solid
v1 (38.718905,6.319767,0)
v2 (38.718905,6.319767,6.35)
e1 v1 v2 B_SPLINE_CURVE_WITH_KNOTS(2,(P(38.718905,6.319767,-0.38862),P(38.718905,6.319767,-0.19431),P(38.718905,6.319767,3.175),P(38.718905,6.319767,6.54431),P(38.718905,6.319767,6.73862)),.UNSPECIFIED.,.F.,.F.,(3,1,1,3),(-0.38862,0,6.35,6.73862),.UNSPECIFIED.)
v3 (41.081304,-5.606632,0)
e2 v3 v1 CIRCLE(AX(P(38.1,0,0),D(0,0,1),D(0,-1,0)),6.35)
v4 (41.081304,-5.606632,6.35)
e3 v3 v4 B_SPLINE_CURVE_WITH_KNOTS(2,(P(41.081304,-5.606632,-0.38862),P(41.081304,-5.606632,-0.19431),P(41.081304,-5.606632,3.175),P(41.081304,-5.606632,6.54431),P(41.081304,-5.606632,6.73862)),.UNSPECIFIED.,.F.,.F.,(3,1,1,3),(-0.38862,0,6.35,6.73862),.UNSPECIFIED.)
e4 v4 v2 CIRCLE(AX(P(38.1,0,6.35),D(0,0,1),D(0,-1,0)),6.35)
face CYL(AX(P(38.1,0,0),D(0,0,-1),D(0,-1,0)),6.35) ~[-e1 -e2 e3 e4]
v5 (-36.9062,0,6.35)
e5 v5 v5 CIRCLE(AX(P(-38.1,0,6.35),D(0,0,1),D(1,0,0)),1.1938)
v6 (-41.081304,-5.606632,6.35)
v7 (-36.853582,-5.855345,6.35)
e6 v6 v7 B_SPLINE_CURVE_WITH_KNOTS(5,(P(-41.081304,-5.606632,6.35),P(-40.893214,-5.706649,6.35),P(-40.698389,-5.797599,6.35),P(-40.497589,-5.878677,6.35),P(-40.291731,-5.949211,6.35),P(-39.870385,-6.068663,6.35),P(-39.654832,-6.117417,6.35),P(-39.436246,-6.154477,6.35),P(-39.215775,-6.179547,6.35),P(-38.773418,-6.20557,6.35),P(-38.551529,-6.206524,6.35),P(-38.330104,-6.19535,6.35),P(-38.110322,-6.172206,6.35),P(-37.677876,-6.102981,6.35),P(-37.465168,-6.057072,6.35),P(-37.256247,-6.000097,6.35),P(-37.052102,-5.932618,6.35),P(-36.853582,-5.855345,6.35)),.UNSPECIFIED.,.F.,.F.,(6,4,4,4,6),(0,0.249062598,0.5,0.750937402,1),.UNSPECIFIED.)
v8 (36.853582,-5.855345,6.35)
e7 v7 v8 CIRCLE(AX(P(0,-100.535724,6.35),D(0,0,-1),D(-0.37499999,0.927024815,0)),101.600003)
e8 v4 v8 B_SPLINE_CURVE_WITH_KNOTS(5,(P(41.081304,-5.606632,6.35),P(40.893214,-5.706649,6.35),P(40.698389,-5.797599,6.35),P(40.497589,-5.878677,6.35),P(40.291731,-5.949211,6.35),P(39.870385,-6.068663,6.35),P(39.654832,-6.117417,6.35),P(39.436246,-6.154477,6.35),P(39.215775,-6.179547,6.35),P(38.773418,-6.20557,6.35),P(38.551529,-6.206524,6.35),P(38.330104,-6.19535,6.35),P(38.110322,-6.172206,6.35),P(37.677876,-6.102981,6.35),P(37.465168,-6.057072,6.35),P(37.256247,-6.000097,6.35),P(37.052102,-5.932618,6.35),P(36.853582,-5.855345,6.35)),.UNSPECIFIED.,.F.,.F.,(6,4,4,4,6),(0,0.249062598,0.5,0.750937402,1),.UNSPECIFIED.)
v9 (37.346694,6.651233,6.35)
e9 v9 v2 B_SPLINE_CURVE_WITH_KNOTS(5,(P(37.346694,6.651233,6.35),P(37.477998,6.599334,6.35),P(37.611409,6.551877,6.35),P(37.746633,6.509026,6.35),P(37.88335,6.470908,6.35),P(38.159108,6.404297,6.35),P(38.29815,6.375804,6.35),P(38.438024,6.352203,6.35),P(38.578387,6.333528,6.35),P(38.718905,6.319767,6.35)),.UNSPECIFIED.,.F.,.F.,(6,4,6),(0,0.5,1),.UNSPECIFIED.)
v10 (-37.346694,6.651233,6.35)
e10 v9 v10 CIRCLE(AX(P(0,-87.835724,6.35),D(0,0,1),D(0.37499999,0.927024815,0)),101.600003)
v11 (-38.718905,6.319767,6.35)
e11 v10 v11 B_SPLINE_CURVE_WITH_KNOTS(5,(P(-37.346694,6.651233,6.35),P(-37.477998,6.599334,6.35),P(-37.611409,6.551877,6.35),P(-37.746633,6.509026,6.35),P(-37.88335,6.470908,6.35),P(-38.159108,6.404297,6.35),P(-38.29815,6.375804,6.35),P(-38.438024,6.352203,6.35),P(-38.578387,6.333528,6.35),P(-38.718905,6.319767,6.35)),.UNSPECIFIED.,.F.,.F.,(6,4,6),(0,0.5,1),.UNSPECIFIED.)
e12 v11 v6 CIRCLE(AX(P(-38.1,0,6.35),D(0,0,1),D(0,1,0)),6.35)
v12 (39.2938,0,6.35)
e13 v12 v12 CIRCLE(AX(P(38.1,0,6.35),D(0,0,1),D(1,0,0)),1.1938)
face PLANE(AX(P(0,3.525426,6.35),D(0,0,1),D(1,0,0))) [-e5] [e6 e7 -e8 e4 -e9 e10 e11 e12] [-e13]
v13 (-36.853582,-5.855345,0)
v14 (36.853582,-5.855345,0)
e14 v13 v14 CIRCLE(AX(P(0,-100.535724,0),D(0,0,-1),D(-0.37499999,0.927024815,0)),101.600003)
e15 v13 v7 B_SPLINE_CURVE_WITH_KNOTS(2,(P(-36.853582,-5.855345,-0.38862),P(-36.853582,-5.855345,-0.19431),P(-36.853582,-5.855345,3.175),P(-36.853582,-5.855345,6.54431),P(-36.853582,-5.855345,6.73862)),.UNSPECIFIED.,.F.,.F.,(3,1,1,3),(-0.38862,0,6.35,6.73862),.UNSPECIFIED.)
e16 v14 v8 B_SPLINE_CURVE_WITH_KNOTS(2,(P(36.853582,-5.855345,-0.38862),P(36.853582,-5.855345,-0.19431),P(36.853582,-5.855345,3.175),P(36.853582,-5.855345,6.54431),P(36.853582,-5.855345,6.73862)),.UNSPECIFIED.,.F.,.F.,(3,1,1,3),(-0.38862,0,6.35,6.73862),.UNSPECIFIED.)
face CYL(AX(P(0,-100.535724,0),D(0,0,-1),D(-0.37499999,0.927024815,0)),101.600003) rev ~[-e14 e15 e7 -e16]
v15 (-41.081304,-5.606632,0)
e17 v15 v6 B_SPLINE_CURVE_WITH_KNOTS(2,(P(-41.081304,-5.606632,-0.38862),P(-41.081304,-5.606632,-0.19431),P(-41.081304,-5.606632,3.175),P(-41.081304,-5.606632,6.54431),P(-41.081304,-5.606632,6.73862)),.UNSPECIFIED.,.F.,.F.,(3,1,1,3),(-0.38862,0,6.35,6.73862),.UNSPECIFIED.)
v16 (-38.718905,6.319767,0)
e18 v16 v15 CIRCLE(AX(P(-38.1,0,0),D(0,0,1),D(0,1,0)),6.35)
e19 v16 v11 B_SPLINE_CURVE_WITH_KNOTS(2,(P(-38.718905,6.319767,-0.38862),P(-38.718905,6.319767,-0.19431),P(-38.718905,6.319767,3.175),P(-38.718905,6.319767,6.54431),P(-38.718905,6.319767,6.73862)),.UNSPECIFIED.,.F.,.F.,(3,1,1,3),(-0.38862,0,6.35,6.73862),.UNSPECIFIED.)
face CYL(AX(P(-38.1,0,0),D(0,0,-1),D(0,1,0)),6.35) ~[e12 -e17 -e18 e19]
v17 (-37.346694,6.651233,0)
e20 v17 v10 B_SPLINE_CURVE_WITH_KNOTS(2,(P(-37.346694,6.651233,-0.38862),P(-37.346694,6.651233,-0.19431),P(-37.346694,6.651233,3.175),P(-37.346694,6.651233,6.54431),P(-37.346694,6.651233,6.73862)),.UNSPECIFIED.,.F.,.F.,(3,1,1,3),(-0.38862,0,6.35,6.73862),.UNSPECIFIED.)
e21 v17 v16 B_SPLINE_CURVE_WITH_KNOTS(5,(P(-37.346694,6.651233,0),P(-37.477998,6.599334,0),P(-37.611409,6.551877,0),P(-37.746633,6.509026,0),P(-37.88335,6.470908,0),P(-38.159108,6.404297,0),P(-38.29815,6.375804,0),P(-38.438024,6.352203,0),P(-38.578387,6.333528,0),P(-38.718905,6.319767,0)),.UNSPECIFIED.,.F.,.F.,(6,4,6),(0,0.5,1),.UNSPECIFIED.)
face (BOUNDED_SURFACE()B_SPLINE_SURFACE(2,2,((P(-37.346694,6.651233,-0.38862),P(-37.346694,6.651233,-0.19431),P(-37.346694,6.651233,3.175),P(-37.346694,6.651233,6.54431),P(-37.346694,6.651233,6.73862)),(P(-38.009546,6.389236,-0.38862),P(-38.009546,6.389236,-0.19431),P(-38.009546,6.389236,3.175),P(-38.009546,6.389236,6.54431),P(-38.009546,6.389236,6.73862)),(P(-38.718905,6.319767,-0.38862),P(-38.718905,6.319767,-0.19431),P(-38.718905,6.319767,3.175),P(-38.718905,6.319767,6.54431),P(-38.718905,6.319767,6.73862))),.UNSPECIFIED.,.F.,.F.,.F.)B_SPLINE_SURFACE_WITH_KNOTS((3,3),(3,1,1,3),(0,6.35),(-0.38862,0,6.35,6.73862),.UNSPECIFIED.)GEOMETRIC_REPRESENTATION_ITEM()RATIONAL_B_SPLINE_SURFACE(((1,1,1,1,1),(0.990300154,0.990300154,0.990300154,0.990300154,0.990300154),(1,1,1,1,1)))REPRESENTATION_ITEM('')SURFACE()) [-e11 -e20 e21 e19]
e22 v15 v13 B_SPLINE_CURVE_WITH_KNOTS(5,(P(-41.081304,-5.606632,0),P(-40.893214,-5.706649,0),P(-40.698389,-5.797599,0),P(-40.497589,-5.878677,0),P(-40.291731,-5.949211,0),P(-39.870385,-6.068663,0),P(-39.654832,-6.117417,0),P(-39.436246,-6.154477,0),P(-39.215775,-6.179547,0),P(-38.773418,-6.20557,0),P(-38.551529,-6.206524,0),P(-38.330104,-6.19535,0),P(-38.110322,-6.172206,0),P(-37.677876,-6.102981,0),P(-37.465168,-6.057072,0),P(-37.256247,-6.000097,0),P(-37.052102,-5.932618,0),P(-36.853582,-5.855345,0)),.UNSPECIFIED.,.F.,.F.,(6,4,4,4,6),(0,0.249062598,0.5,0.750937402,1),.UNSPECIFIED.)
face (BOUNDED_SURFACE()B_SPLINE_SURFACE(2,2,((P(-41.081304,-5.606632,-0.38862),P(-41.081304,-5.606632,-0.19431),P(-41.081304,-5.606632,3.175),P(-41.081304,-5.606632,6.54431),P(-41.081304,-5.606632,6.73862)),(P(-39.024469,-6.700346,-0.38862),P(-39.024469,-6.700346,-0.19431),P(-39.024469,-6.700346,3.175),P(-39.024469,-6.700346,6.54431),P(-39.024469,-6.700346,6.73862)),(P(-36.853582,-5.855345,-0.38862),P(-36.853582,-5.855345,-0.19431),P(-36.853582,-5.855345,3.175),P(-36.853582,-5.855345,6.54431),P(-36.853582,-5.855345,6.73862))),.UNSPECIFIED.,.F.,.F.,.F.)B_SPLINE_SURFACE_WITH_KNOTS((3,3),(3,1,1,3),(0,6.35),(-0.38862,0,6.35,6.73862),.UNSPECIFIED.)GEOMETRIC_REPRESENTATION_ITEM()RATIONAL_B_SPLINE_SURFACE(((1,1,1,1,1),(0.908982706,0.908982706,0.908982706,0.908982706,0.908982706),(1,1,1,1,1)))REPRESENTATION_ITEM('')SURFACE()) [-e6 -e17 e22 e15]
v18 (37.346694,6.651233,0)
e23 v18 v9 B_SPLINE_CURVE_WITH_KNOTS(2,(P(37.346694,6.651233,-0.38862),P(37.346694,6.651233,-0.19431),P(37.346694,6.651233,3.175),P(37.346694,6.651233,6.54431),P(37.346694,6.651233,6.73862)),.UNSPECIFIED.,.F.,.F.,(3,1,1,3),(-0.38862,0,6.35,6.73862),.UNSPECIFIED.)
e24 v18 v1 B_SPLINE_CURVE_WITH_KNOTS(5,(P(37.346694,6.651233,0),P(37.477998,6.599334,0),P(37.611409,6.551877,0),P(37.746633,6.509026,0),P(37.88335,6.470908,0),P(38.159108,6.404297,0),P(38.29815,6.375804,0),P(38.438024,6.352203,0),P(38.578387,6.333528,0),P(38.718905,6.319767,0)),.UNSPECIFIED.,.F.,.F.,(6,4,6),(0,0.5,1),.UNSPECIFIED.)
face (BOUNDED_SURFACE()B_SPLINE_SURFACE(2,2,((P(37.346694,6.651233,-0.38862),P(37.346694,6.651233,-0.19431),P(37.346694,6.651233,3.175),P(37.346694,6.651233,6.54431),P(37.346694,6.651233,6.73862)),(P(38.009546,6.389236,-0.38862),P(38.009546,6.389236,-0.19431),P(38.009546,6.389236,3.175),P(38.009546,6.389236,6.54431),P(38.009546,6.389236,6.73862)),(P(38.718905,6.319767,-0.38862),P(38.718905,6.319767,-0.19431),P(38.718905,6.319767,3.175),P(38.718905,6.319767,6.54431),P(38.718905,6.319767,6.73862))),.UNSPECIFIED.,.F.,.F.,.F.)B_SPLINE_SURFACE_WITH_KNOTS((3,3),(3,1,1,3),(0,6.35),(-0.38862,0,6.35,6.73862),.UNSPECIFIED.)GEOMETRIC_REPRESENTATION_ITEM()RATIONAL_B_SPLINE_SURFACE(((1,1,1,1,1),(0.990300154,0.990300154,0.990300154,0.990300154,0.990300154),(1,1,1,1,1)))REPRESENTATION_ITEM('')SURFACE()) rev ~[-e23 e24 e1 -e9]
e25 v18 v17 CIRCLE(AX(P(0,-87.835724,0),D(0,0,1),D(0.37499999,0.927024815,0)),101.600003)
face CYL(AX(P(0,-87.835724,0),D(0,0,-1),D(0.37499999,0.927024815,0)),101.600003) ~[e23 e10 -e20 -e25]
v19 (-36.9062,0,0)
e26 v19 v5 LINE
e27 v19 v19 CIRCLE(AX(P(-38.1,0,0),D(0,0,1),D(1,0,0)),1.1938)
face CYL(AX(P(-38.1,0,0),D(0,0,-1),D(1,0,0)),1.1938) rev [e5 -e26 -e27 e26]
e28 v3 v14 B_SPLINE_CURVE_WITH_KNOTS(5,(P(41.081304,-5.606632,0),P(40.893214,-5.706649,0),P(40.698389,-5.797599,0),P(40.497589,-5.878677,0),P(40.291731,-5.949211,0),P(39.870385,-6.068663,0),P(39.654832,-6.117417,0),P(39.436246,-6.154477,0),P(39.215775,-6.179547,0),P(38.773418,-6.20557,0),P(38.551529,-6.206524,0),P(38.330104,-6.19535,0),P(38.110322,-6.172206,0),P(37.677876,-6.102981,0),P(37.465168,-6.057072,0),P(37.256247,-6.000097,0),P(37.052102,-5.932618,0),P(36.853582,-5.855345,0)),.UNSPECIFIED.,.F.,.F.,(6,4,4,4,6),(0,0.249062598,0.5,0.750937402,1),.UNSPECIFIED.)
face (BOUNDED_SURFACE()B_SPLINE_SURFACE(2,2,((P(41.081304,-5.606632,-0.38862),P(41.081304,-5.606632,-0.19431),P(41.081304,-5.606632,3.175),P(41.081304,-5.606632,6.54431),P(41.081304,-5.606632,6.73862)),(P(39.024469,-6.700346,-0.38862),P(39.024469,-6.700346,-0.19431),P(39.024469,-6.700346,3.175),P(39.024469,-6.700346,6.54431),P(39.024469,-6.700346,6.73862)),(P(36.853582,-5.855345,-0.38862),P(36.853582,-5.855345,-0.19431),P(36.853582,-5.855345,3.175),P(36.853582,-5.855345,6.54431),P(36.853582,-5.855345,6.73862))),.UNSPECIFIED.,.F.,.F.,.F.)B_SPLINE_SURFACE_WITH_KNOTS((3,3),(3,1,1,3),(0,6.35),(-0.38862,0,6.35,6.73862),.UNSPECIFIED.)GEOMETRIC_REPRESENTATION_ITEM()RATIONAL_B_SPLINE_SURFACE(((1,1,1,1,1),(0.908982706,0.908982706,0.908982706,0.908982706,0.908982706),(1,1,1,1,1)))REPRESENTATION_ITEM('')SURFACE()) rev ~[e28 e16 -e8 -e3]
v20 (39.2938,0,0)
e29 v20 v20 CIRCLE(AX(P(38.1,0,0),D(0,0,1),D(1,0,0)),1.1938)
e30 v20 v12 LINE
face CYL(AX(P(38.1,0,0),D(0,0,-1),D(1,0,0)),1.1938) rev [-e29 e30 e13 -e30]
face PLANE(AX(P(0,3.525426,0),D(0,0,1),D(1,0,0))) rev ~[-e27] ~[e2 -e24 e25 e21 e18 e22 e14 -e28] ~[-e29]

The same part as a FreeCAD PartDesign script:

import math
import FreeCAD as App
import Part
import Sketcher
Q = App.Units.Quantity


def edges_at(feature, points):
    """Names of the edges that pass closest to the given points."""
    edges = feature.Shape.Edges
    near = lambda p: min(range(len(edges)), key=lambda i: edges[i].distToShape(Part.Vertex(*p))[0])
    return sorted({f"Edge{near(p) + 1}" for p in points})

doc = App.newDocument("Part")
body = doc.addObject("PartDesign::Body", "Body")

sketch1 = body.newObject("Sketcher::SketchObject", "Sketch")
sketch1.AttachmentSupport = (doc.getObject("XY_Plane"), [""])
sketch1.MapMode = "FlatFace"
sketch1.addGeometry([
    Part.ArcOfCircle(Part.Circle(App.Vector(0, -87.835724, 0), App.Vector(0, 0, 1), 101.600003), math.radians(67.975688), math.radians(112.024312)),
    Part.ArcOfCircle(Part.Circle(App.Vector(-38.1, 0, 0), App.Vector(0, 0, 1), 6.35), math.radians(90), math.radians(270)),
    Part.ArcOfCircle(Part.Circle(App.Vector(0, -100.535724, 0), App.Vector(0, 0, 1), 101.600003), math.radians(67.975688), math.radians(112.024312)),
    Part.ArcOfCircle(Part.Circle(App.Vector(38.1, 0, 0), App.Vector(0, 0, 1), 6.35), math.radians(-90), math.radians(90)),
    Part.Circle(App.Vector(-38.1, 0, 0), App.Vector(0, 0, 1), 1.1938),
    Part.Circle(App.Vector(38.1, 0, 0), App.Vector(0, 0, 1), 1.1938),
], False)
sketch1.addConstraint([
    Sketcher.Constraint("Coincident", 0, 2, 1, 1),
    Sketcher.Constraint("Coincident", 1, 2, 2, 2),
    Sketcher.Constraint("Coincident", 2, 1, 3, 1),
    Sketcher.Constraint("Coincident", 3, 2, 0, 1),
    Sketcher.Constraint("Coincident", 4, 3, 1, 3),
    Sketcher.Constraint("Coincident", 5, 3, 3, 3),
    Sketcher.Constraint("Equal", 0, 2),
    Sketcher.Constraint("Equal", 1, 3),
    Sketcher.Constraint("Equal", 4, 5),
    Sketcher.Constraint("Symmetric", 1, 3, 3, 3, -1, 1),
    Sketcher.Constraint("Symmetric", 1, 2, 2, 1, -2),
    Sketcher.Constraint("PointOnObject", 0, 3, -2),
    Sketcher.Constraint("Vertical", 4, 3, 0, 2),
    Sketcher.Constraint("Vertical", 0, 2, 1, 2),
    Sketcher.Constraint("Radius", 0, Q("4.0000001 in")),
    Sketcher.Constraint("Radius", 1, Q("0.25 in")),
    Sketcher.Constraint("Diameter", 4, Q("0.094 in")),
    Sketcher.Constraint("DistanceX", 1, 3, 3, 3, Q("3 in")),
])
pad1 = body.newObject("PartDesign::Pad", "Pad")
pad1.Profile = sketch1
pad1.Length = Q("0.25 in")
doc.recompute()

fillet = body.newObject("PartDesign::Fillet", "Fillet")
fillet.Base = (pad1, edges_at(pad1, [
    (-38.1, -6.35, 3.175),
    (38.1, -6.35, 3.175),
    (38.1, 6.35, 3.175),
    (-38.1, 6.35, 3.175),
]))
fillet.Radius = Q("0.2 in")

doc.recompute()
